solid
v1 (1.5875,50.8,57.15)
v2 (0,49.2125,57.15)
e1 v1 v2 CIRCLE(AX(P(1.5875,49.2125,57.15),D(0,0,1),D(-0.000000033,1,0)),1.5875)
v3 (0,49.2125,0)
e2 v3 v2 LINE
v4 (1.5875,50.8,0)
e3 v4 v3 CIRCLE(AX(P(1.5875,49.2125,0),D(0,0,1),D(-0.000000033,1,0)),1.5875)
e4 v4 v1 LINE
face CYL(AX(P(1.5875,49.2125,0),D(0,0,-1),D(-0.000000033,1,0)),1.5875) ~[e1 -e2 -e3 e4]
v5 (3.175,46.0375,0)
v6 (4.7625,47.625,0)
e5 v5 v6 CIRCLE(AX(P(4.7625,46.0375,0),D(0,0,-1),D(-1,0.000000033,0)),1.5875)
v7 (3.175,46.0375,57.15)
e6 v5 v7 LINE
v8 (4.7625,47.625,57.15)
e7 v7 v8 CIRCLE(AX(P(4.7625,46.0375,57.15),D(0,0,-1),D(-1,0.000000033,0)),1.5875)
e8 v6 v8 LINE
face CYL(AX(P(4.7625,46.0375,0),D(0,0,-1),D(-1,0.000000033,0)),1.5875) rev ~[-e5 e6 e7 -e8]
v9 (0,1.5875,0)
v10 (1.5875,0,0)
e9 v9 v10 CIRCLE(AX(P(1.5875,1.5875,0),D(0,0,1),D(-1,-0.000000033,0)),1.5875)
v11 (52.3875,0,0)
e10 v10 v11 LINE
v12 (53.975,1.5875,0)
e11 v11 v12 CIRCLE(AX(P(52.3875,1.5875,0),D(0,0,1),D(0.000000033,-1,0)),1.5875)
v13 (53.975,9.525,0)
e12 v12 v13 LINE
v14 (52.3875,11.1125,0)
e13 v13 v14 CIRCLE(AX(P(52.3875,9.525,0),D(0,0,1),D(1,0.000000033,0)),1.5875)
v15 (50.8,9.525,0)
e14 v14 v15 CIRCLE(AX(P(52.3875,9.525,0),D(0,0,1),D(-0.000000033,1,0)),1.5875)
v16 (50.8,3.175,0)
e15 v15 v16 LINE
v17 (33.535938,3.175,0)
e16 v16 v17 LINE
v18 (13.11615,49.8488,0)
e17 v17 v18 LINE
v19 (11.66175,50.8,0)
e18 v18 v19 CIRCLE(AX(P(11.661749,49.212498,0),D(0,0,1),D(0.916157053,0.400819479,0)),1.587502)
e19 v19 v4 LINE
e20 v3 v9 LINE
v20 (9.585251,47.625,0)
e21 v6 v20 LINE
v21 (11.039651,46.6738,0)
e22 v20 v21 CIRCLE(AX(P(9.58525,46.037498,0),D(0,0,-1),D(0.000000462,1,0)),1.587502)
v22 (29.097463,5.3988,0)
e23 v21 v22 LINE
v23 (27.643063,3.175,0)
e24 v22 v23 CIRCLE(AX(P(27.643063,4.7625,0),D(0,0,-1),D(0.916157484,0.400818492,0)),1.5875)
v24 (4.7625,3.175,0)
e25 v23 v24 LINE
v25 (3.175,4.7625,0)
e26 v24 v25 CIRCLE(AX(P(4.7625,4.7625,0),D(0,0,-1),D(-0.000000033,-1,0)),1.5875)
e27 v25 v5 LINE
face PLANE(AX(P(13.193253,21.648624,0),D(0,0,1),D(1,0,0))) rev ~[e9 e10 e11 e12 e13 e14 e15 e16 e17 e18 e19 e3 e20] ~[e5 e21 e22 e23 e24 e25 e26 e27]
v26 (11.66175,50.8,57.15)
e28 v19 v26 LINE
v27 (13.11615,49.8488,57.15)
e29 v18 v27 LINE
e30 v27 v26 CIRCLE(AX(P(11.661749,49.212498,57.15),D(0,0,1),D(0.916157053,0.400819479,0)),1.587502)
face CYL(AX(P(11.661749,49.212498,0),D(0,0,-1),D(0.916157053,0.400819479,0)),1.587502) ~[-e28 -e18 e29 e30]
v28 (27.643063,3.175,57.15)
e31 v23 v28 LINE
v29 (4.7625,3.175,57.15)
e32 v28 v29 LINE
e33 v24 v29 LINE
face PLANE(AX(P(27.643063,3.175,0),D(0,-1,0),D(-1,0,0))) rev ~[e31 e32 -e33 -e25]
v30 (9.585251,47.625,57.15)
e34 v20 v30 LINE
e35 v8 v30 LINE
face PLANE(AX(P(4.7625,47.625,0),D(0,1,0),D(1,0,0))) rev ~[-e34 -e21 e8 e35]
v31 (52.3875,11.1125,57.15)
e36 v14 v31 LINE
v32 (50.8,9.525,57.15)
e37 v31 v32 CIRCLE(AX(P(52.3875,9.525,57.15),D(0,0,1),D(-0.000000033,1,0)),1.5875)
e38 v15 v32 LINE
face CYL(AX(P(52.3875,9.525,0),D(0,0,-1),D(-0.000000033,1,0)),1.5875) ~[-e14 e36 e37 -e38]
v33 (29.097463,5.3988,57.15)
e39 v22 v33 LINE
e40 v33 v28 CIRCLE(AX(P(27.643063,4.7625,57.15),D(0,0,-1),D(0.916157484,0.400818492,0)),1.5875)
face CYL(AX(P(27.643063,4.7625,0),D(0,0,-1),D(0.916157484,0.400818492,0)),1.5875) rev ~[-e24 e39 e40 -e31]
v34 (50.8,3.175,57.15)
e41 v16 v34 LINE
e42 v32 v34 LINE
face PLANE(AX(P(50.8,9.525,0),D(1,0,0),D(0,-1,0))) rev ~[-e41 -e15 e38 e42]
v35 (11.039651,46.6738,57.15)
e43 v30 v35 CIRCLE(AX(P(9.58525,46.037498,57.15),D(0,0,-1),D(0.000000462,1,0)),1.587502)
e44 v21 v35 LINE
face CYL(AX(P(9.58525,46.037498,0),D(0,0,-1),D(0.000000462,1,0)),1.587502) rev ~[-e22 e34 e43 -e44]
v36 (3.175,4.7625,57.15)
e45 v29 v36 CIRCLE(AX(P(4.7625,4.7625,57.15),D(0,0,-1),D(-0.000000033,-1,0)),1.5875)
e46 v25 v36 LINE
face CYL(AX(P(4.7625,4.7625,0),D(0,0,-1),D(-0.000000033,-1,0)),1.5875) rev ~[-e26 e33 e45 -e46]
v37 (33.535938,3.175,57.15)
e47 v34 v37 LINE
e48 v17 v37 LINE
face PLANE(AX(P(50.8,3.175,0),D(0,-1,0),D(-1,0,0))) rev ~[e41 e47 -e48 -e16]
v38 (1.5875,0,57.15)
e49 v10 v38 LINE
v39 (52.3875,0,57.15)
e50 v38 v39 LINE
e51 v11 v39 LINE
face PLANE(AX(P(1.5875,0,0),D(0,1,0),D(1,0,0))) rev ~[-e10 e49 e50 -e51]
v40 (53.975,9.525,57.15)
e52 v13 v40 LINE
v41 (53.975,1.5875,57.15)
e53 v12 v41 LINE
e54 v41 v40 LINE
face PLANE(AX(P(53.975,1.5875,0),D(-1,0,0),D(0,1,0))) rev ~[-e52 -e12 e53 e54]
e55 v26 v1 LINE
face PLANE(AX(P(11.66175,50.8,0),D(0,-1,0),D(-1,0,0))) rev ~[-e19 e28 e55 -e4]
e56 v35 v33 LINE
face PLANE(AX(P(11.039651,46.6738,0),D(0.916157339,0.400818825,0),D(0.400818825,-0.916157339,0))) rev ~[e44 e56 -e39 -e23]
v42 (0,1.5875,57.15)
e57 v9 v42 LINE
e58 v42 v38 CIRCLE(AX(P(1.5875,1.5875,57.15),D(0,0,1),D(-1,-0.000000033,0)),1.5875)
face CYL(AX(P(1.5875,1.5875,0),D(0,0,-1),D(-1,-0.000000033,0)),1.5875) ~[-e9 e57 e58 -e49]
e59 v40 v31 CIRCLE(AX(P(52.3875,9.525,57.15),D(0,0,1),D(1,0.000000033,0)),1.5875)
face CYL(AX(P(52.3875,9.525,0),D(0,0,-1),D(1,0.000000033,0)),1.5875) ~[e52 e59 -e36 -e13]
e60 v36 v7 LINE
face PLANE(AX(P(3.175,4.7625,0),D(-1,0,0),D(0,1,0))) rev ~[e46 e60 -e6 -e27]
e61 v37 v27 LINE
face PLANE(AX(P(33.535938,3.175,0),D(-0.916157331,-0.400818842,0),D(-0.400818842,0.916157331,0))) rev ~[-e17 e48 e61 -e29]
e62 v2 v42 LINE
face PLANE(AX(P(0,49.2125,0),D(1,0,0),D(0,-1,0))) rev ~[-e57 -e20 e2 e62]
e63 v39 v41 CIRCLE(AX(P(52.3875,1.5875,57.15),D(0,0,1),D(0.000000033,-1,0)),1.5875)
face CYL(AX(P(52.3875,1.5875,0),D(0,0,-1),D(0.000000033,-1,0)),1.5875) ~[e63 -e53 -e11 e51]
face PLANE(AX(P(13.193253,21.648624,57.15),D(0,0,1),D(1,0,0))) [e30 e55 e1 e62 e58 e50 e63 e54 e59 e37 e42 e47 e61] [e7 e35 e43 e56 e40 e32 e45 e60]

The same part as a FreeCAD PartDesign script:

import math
import FreeCAD as App
import Part
import Sketcher

V = App.Vector
Q = App.Units.Quantity

doc = App.newDocument("Part")
params = doc.addObject("Spreadsheet::Sheet", "Params")
for row, (alias, value) in enumerate([
    ("sketch1_width", "2 in"),
    ("sketch1_radius", "0.0625 in"),
    ("sketch1_height", "0.25 in"),
    ("sketch1_height2", "0.3125 in"),
    ("sketch1_height3", "1.625 in"),
    ("pad1_length", "2.25 in"),
], start=1):
    params.set(f"A{row}", alias)
    params.set(f"B{row}", "=" + value)
    params.setAlias(f"B{row}", alias)

body = doc.addObject("PartDesign::Body", "Body")

# Sketch on XY plane
sketch1 = body.newObject("Sketcher::SketchObject", "Sketch")
sketch1.AttachmentSupport = (doc.getObject("XY_Plane"), [""])
sketch1.MapMode = "FlatFace"
sketch1.addGeometry([
    Part.ArcOfCircle(Part.Circle(V(1.6, 1.6, 0), V(0, 0, 1), 1.6), math.radians(-180), math.radians(-90)),  # 0
    Part.LineSegment(V(1.6, 0, 0), V(52.4, 0, 0)),  # 1
    Part.ArcOfCircle(Part.Circle(V(52.4, 1.6, 0), V(0, 0, 1), 1.6), math.radians(-90), math.radians(0)),  # 2
    Part.LineSegment(V(54, 1.6, 0), V(54, 9.5, 0)),  # 3
    Part.ArcOfCircle(Part.Circle(V(52.4, 9.5, 0), V(0, 0, 1), 1.6), math.radians(0), math.radians(90)),  # 4
    Part.ArcOfCircle(Part.Circle(V(52.4, 9.5, 0), V(0, 0, 1), 1.6), math.radians(90), math.radians(180)),  # 5
    Part.LineSegment(V(50.8, 9.5, 0), V(50.8, 3.2, 0)),  # 6
    Part.LineSegment(V(50.8, 3.2, 0), V(33.5, 3.2, 0)),  # 7
    Part.LineSegment(V(33.5, 3.2, 0), V(13.1, 49.8, 0)),  # 8
    Part.ArcOfCircle(Part.Circle(V(11.7, 49.2, 0), V(0, 0, 1), 1.6), math.radians(24), math.radians(90)),  # 9
    Part.LineSegment(V(11.7, 50.8, 0), V(1.6, 50.8, 0)),  # 10
    Part.ArcOfCircle(Part.Circle(V(1.6, 49.2, 0), V(0, 0, 1), 1.6), math.radians(90), math.radians(180)),  # 11
    Part.LineSegment(V(0, 49.2, 0), V(0, 1.6, 0)),  # 12
    Part.LineSegment(V(27.6, 3.2, 0), V(4.8, 3.2, 0)),  # 13
    Part.ArcOfCircle(Part.Circle(V(4.8, 4.8, 0), V(0, 0, 1), 1.6), math.radians(-180), math.radians(-90)),  # 14
    Part.LineSegment(V(3.2, 4.8, 0), V(3.2, 46, 0)),  # 15
    Part.ArcOfCircle(Part.Circle(V(4.8, 46, 0), V(0, 0, 1), 1.6), math.radians(90), math.radians(180)),  # 16
    Part.LineSegment(V(4.8, 47.6, 0), V(9.6, 47.6, 0)),  # 17
    Part.ArcOfCircle(Part.Circle(V(9.6, 46, 0), V(0, 0, 1), 1.6), math.radians(24), math.radians(90)),  # 18
    Part.LineSegment(V(11, 46.7, 0), V(29.1, 5.4, 0)),  # 19
    Part.ArcOfCircle(Part.Circle(V(27.6, 4.8, 0), V(0, 0, 1), 1.6), math.radians(-90), math.radians(24)),  # 20
], False)
sketch1.addConstraint([
    Sketcher.Constraint("Tangent", 0, 2, 1, 1),
    Sketcher.Constraint("Tangent", 1, 2, 2, 1),
    Sketcher.Constraint("Tangent", 2, 2, 3, 1),
    Sketcher.Constraint("Tangent", 3, 2, 4, 1),
    Sketcher.Constraint("Tangent", 4, 2, 5, 1),
    Sketcher.Constraint("Tangent", 5, 2, 6, 1),
    Sketcher.Constraint("Coincident", 6, 2, 7, 1),
    Sketcher.Constraint("Coincident", 7, 2, 8, 1),
    Sketcher.Constraint("Tangent", 8, 2, 9, 1),
    Sketcher.Constraint("Tangent", 9, 2, 10, 1),
    Sketcher.Constraint("Tangent", 10, 2, 11, 1),
    Sketcher.Constraint("Tangent", 11, 2, 12, 1),
    Sketcher.Constraint("Tangent", 12, 2, 0, 1),
    Sketcher.Constraint("Tangent", 13, 2, 14, 2),
    Sketcher.Constraint("Tangent", 14, 1, 15, 1),
    Sketcher.Constraint("Tangent", 15, 2, 16, 2),
    Sketcher.Constraint("Tangent", 16, 1, 17, 1),
    Sketcher.Constraint("Tangent", 17, 2, 18, 2),
    Sketcher.Constraint("Tangent", 18, 1, 19, 1),
    Sketcher.Constraint("Tangent", 19, 2, 20, 2),
    Sketcher.Constraint("Tangent", 20, 1, 13, 1),
    Sketcher.Constraint("Horizontal", 1),
    Sketcher.Constraint("Vertical", 3),
    Sketcher.Constraint("Vertical", 6),
    Sketcher.Constraint("Horizontal", 7),
    Sketcher.Constraint("Horizontal", 10),
    Sketcher.Constraint("Vertical", 12),
    Sketcher.Constraint("Horizontal", 13),
    Sketcher.Constraint("Vertical", 15),
    Sketcher.Constraint("Horizontal", 17),
    Sketcher.Constraint("Equal", 0, 2),
    Sketcher.Constraint("Equal", 2, 4),
    Sketcher.Constraint("Equal", 4, 5),
    Sketcher.Constraint("Equal", 5, 9),
    Sketcher.Constraint("Equal", 9, 11),
    Sketcher.Constraint("Equal", 11, 14),
    Sketcher.Constraint("Equal", 14, 16),
    Sketcher.Constraint("Equal", 16, 18),
    Sketcher.Constraint("Equal", 18, 20),
    Sketcher.Constraint("PointOnObject", 0, 2, -1),
    Sketcher.Constraint("PointOnObject", 11, 2, -2),
    Sketcher.Constraint("Parallel", 8, 19),
    Sketcher.Constraint("Horizontal", 7, 2, 13, 2),
    Sketcher.Constraint("Vertical", 1, 2, 4, 2),
    Sketcher.Constraint("DistanceX", 1, 1, 1, 2, Q("2 in")),
    Sketcher.Constraint("DistanceY", -1, 1, 9, 2, Q("2 in")),
    Sketcher.Constraint("Radius", 0, Q("0.0625 in")),
    Sketcher.Constraint("DistanceY", 6, 2, 6, 1, Q("0.25 in")),
    Sketcher.Constraint("DistanceY", 3, 1, 3, 2, Q("0.3125 in")),
    Sketcher.Constraint("DistanceY", 15, 1, 15, 2, Q("1.625 in")),
    Sketcher.Constraint("DistanceX", -1, 1, 14, 3, Q("0.1875 in")),
    Sketcher.Constraint("DistanceX", 7, 2, 7, 1, Q("17.264062 mm")),
    Sketcher.Constraint("DistanceX", 10, 2, 10, 1, Q("10.07425 mm")),
    Sketcher.Constraint("DistanceX", 17, 1, 17, 2, Q("4.822751 mm")),
])
sketch1.setExpression("Constraints[44]", "Params.sketch1_width")
sketch1.setExpression("Constraints[46]", "Params.sketch1_radius")
sketch1.setExpression("Constraints[47]", "Params.sketch1_height")
sketch1.setExpression("Constraints[48]", "Params.sketch1_height2")
sketch1.setExpression("Constraints[49]", "Params.sketch1_height3")
pad1 = body.newObject("PartDesign::Pad", "Pad")
pad1.Profile = sketch1
pad1.setExpression("Length", "Params.pad1_length")

doc.recompute()
